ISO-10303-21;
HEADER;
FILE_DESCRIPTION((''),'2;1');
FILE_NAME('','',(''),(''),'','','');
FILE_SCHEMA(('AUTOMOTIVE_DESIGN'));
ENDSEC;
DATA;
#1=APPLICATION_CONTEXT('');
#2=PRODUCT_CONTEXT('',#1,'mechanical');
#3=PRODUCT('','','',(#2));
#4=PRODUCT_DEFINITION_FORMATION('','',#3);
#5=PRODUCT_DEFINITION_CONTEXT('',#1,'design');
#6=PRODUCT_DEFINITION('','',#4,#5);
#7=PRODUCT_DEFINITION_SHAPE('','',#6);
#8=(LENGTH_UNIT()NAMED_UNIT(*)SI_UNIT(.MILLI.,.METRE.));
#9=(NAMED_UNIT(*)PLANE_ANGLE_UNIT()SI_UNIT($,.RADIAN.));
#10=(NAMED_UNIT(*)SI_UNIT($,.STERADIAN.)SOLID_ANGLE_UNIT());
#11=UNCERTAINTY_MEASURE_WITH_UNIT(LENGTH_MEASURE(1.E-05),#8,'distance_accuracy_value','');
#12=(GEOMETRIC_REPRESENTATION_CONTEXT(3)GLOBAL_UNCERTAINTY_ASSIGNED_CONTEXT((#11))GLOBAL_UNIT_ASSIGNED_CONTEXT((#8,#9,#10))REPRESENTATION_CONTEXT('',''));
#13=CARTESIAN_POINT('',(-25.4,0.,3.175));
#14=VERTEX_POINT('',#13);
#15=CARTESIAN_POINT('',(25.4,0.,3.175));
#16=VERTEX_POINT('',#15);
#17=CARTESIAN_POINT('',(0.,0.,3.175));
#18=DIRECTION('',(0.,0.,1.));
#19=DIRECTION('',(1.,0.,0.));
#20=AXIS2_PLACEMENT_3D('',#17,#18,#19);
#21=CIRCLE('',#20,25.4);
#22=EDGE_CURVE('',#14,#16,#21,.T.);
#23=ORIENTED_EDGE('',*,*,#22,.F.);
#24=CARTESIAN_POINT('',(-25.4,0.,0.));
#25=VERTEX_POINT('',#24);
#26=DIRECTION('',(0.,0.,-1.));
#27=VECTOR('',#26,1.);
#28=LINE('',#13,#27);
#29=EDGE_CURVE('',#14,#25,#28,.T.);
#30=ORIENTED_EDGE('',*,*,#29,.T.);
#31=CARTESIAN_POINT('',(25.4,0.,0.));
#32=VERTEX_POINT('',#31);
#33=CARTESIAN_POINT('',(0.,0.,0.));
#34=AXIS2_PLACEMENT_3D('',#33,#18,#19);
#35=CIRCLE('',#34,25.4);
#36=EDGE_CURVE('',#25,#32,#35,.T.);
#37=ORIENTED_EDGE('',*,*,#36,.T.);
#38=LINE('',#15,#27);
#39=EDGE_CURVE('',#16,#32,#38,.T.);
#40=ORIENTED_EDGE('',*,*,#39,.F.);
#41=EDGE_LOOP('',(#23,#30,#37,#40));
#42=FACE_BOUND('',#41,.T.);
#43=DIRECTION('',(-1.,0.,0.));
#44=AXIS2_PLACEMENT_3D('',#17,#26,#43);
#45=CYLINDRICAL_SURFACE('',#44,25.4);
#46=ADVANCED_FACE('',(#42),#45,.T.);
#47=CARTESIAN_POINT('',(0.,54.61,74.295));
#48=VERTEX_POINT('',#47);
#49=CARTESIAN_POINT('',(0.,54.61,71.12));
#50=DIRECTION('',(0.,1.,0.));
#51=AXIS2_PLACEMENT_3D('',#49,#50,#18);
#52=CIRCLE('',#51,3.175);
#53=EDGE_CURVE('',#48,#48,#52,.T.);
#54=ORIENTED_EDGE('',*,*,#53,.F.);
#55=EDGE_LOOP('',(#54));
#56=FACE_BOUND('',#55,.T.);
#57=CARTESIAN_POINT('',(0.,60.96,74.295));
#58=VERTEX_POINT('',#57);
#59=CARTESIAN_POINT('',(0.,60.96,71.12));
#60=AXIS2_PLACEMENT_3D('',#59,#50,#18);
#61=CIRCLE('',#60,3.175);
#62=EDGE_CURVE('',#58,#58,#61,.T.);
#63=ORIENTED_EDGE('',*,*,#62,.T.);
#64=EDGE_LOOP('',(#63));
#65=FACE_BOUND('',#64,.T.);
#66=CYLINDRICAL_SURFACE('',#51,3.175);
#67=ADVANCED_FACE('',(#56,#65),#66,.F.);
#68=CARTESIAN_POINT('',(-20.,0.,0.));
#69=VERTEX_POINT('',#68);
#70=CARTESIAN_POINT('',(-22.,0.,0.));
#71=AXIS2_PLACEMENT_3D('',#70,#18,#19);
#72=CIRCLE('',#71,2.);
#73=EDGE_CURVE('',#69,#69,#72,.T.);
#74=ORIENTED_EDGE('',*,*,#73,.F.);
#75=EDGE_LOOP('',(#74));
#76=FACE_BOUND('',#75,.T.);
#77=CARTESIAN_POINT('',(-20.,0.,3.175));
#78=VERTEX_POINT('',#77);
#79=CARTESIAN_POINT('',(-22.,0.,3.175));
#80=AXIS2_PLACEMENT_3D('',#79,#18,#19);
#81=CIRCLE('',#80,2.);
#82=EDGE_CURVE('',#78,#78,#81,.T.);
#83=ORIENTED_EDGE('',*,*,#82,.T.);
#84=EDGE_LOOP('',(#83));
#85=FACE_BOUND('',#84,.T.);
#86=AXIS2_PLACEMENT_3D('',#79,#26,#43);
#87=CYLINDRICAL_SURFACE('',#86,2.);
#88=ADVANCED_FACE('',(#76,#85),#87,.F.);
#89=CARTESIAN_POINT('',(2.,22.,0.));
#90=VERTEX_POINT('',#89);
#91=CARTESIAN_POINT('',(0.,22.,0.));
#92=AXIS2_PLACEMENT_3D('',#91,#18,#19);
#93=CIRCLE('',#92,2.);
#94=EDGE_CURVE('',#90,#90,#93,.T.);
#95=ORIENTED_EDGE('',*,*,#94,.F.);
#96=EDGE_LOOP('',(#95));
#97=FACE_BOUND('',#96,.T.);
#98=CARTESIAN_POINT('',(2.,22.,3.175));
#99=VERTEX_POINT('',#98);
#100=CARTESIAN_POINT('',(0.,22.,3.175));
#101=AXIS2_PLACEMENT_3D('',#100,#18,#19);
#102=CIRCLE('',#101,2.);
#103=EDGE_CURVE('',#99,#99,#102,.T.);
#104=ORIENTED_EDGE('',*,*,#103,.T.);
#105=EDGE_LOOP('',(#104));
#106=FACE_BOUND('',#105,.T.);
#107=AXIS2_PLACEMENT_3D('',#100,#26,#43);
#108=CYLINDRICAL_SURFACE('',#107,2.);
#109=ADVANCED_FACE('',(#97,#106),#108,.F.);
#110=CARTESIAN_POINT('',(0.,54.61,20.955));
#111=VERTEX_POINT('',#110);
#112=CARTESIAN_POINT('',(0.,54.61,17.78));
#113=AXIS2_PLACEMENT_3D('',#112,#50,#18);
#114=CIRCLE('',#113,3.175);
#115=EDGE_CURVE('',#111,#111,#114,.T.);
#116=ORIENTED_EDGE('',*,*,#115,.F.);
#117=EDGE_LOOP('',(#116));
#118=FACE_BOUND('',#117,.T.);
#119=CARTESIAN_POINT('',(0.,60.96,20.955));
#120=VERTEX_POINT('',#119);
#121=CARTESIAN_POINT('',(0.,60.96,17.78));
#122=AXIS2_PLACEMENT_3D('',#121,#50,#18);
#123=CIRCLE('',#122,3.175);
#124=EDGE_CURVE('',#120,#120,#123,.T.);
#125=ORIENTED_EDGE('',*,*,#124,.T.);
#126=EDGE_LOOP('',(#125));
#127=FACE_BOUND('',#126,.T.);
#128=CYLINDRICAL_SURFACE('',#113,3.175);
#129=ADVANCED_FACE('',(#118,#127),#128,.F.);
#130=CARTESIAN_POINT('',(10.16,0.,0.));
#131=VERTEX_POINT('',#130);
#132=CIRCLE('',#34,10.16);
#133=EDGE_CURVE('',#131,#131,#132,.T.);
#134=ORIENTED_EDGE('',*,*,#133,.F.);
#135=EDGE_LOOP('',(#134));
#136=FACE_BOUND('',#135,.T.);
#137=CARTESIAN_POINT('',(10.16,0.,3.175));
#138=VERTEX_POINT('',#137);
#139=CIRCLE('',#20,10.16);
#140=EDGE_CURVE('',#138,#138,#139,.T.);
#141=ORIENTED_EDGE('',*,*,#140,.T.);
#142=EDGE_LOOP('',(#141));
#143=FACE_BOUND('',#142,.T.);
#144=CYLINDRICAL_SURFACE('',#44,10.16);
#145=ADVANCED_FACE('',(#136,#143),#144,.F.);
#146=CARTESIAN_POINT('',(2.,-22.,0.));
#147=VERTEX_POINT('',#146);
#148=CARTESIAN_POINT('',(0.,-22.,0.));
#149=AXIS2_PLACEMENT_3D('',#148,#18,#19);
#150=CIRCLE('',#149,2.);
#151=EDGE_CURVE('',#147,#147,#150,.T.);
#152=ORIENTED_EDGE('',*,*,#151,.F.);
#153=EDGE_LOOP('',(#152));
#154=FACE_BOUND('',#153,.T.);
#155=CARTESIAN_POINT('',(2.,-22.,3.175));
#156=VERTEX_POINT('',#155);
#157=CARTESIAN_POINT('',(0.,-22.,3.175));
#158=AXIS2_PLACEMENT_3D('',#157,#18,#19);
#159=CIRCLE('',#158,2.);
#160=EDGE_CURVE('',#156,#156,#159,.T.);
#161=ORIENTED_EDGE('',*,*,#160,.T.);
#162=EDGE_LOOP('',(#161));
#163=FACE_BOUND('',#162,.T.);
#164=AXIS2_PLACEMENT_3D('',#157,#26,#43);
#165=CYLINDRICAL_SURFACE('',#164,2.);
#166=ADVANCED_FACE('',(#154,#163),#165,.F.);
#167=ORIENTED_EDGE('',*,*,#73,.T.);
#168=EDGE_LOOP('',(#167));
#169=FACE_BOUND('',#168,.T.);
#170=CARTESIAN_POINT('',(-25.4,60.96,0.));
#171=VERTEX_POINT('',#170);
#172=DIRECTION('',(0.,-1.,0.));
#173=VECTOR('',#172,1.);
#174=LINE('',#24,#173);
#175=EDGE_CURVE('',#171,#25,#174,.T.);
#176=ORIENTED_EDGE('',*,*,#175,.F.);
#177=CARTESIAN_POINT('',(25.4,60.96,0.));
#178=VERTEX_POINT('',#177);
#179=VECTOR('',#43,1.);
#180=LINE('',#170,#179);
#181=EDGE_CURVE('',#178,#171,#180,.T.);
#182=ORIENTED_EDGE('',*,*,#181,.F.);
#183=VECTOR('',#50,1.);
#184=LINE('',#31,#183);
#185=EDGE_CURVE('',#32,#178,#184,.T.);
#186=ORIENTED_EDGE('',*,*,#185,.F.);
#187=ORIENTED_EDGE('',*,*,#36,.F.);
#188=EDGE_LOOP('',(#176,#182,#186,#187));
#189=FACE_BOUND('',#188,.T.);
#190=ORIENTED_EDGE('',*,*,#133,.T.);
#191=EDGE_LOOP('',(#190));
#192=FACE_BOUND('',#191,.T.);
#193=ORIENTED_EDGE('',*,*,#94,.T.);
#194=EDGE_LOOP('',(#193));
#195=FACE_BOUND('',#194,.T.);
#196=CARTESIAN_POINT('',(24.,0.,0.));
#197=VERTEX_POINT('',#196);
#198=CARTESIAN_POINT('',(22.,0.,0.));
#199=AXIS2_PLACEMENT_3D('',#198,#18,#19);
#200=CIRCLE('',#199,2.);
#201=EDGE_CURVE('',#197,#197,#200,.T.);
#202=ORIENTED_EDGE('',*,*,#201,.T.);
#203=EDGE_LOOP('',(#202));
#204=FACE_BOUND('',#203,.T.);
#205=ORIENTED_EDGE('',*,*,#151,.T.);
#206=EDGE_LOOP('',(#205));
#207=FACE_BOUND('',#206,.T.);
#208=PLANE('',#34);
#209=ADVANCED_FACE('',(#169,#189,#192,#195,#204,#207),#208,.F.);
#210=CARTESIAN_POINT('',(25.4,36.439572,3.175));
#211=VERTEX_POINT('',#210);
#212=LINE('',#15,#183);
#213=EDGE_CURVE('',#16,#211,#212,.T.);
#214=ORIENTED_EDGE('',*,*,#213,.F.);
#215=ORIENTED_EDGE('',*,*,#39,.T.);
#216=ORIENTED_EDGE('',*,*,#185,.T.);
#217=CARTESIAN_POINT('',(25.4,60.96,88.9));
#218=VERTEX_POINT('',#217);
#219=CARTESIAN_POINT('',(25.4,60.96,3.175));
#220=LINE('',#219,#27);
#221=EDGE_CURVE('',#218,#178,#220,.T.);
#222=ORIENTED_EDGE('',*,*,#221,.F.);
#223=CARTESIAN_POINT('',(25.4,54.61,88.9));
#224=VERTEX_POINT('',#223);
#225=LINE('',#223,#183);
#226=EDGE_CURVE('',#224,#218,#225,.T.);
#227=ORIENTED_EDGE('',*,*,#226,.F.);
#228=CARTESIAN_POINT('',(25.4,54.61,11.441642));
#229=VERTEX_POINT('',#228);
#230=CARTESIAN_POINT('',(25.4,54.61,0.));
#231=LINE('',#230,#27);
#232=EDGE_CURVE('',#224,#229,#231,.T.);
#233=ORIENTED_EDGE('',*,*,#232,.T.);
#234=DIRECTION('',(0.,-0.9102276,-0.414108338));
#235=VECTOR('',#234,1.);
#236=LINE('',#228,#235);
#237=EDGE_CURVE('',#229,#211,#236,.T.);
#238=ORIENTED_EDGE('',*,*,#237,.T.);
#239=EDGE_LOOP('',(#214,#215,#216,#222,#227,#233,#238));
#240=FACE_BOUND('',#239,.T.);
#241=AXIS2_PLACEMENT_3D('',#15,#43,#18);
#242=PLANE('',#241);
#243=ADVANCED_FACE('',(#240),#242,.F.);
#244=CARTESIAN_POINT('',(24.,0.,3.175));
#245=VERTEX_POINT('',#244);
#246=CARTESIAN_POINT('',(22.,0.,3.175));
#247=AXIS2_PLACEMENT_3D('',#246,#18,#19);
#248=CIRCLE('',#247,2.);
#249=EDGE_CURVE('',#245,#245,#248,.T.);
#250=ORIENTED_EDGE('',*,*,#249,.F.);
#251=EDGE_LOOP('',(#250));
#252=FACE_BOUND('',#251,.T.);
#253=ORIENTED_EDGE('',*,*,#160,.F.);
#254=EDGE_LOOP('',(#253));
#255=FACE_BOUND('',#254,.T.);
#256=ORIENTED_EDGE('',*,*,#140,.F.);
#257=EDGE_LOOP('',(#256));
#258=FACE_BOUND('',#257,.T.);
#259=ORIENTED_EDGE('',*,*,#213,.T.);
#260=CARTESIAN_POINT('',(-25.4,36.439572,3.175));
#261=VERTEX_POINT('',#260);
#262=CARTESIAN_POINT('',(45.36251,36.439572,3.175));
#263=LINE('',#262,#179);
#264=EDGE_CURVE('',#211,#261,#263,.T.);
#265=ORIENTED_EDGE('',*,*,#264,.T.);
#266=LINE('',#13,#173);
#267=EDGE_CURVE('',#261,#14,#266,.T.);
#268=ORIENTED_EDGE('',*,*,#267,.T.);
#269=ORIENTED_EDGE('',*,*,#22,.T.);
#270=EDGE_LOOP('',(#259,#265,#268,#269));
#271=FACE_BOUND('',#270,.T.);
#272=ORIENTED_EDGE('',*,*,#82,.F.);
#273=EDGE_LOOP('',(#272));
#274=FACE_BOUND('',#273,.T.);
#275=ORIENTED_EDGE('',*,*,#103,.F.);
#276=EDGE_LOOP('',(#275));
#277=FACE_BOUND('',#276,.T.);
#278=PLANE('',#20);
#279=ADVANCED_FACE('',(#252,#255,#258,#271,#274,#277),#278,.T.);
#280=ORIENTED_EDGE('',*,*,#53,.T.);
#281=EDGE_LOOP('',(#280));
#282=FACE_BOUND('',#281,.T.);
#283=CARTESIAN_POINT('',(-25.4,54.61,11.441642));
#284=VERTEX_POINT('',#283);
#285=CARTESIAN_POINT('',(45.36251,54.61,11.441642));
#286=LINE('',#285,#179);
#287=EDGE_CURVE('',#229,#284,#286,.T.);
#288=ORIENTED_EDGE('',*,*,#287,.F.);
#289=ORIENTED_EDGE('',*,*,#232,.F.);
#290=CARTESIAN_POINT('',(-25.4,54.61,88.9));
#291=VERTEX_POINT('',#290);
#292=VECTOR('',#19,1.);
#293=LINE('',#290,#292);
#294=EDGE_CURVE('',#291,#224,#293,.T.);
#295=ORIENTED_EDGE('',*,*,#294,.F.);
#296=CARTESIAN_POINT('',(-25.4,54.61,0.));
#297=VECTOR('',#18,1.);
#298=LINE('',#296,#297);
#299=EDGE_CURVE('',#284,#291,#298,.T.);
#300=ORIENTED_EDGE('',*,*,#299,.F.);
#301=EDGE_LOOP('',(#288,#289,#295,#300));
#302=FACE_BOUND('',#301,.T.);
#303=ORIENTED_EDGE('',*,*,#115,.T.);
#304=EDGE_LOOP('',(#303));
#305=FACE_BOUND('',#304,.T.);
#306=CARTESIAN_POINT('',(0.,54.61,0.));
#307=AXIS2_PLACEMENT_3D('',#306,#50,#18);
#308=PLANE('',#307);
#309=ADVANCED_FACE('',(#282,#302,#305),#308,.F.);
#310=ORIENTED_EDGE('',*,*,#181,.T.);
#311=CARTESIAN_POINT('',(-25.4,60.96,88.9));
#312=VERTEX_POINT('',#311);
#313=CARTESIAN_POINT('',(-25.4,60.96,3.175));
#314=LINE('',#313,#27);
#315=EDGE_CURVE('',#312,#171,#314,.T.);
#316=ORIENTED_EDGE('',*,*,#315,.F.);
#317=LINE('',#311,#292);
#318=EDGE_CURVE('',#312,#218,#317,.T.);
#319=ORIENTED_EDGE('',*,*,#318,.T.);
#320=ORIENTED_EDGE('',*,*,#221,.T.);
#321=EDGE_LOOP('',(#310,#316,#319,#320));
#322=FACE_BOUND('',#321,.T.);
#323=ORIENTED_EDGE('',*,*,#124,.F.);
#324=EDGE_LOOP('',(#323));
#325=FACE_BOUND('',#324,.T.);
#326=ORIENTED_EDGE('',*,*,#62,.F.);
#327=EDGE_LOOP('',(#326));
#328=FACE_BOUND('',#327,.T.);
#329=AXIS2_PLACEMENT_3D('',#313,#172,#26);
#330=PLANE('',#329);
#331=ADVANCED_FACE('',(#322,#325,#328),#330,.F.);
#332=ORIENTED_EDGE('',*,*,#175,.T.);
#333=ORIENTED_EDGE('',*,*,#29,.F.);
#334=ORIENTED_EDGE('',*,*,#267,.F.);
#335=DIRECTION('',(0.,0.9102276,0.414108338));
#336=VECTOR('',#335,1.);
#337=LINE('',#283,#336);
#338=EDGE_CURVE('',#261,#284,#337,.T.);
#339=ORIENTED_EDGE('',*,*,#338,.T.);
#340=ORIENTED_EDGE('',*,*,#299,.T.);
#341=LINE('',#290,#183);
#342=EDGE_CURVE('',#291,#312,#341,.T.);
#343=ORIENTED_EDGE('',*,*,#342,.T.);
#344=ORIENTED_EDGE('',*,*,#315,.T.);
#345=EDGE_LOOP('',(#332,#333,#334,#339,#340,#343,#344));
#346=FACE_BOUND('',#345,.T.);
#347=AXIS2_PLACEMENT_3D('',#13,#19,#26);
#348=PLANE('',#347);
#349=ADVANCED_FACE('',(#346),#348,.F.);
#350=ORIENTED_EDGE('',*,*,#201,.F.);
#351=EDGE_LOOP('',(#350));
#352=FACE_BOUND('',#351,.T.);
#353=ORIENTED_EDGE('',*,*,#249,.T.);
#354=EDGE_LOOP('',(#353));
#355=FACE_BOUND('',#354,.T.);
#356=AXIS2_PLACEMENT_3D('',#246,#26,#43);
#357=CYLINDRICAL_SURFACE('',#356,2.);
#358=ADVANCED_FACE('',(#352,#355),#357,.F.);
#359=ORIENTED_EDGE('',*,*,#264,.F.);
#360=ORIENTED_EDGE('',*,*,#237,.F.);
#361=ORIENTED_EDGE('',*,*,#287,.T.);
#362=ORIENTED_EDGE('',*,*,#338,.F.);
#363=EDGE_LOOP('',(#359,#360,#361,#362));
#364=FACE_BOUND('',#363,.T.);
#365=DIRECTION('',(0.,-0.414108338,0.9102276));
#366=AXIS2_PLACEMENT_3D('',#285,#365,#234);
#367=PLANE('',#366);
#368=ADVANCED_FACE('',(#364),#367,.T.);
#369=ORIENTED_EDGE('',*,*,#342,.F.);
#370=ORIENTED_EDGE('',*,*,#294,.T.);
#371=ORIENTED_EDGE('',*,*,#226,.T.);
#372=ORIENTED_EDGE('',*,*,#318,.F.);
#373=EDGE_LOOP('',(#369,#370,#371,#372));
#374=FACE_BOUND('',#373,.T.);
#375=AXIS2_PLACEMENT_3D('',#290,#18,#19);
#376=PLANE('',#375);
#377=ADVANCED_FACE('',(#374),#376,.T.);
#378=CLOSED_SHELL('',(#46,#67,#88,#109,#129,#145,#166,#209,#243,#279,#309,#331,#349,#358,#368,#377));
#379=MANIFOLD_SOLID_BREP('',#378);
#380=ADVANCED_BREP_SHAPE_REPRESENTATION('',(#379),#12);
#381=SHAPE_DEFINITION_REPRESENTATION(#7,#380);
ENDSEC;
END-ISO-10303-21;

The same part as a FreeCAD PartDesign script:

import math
import FreeCAD as App
import Part
import Sketcher
Q = App.Units.Quantity


def add_polygon(sketch, points):
    """Adds a closed chain of lines whose ends are joined by coincident constraints."""
    first, n = sketch.GeometryCount, len(points)
    for a, b in zip(points, points[1:] + points[:1]):
        sketch.addGeometry(Part.LineSegment(App.Vector(*a, 0), App.Vector(*b, 0)), False)
    for i in range(n):
        sketch.addConstraint(Sketcher.Constraint("Coincident", first + i, 2, first + (i + 1) % n, 1))

doc = App.newDocument("Part")
params = doc.addObject("Spreadsheet::Sheet", "Params")
for row, (alias, value) in enumerate([
    ("sketch1_radius", "1 in"),
    ("sketch1_diameter", "0.8 in"),
    ("sketch1_height", "2.4 in"),
    ("pad1_length", "0.125 in"),
    ("sketch2_diameter", "0.25 in"),
    ("sketch2_width", "2 in"),
    ("sketch2_height", "3.5 in"),
    ("pad2_length", "0.25 in"),
    ("pad3_length", "2 in"),
], start=1):
    params.set(f"A{row}", alias)
    params.set(f"B{row}", "=" + value)
    params.setAlias(f"B{row}", alias)

body = doc.addObject("PartDesign::Body", "Body")

sketch1 = body.newObject("Sketcher::SketchObject", "Sketch")
sketch1.AttachmentSupport = (doc.getObject("XY_Plane"), [""])
sketch1.MapMode = "FlatFace"
sketch1.addGeometry(Part.LineSegment(App.Vector(-25.4, 61, 0), App.Vector(-25.4, 0, 0)), False)
sketch1.addGeometry(Part.ArcOfCircle(Part.Circle(App.Vector(0, 0, 0), App.Vector(0, 0, 1), 25.4), math.radians(180), math.radians(360)), False)
sketch1.addGeometry(Part.LineSegment(App.Vector(25.4, 0, 0), App.Vector(25.4, 61, 0)), False)
sketch1.addGeometry(Part.LineSegment(App.Vector(25.4, 61, 0), App.Vector(-25.4, 61, 0)), False)
sketch1.addGeometry(Part.Circle(App.Vector(22, 0, 0), App.Vector(0, 0, 1), 2), False)
sketch1.addGeometry(Part.Circle(App.Vector(0, -22, 0), App.Vector(0, 0, 1), 2), False)
sketch1.addGeometry(Part.Circle(App.Vector(0, 0, 0), App.Vector(0, 0, 1), 10.2), False)
sketch1.addGeometry(Part.Circle(App.Vector(-22, 0, 0), App.Vector(0, 0, 1), 2), False)
sketch1.addGeometry(Part.Circle(App.Vector(0, 22, 0), App.Vector(0, 0, 1), 2), False)
sketch1.addConstraint(Sketcher.Constraint("Tangent", 0, 2, 1, 1))
sketch1.addConstraint(Sketcher.Constraint("Tangent", 1, 2, 2, 1))
sketch1.addConstraint(Sketcher.Constraint("Coincident", 2, 2, 3, 1))
sketch1.addConstraint(Sketcher.Constraint("Coincident", 3, 2, 0, 1))
sketch1.addConstraint(Sketcher.Constraint("Vertical", 0))
sketch1.addConstraint(Sketcher.Constraint("Vertical", 2))
sketch1.addConstraint(Sketcher.Constraint("Horizontal", 3))
sketch1.addConstraint(Sketcher.Constraint("Coincident", 1, 3, -1, 1))
sketch1.addConstraint(Sketcher.Constraint("Coincident", 6, 3, -1, 1))
sketch1.addConstraint(Sketcher.Constraint("Equal", 4, 5))
sketch1.addConstraint(Sketcher.Constraint("Equal", 5, 7))
sketch1.addConstraint(Sketcher.Constraint("Equal", 7, 8))
sketch1.addConstraint(Sketcher.Constraint("Symmetric", 4, 3, 7, 3, -1, 1))
sketch1.addConstraint(Sketcher.Constraint("Symmetric", 5, 3, 8, 3, -1, 1))
sketch1.addConstraint(Sketcher.Constraint("PointOnObject", 4, 3, -1))
sketch1.addConstraint(Sketcher.Constraint("PointOnObject", 5, 3, -2))
sketch1.addConstraint(Sketcher.Constraint("Radius", 1, Q("1 in")))
sketch1.addConstraint(Sketcher.Constraint("Diameter", 6, Q("0.8 in")))
sketch1.addConstraint(Sketcher.Constraint("DistanceY", 0, 2, 0, 1, Q("2.4 in")))
sketch1.addConstraint(Sketcher.Constraint("Diameter", 4, Q("4 mm")))
sketch1.addConstraint(Sketcher.Constraint("DistanceX", -1, 1, 4, 3, Q("22 mm")))
sketch1.addConstraint(Sketcher.Constraint("DistanceY", 5, 3, -1, 1, Q("22 mm")))
sketch1.setExpression("Constraints[16]", "Params.sketch1_radius")
sketch1.setExpression("Constraints[17]", "Params.sketch1_diameter")
sketch1.setExpression("Constraints[18]", "Params.sketch1_height")
pad1 = body.newObject("PartDesign::Pad", "Pad")
pad1.Profile = sketch1
pad1.setExpression("Length", "Params.pad1_length")

sketch2 = body.newObject("Sketcher::SketchObject", "Sketch001")
sketch2.AttachmentSupport = (doc.getObject("XZ_Plane"), [""])
sketch2.MapMode = "FlatFace"
sketch2.AttachmentOffset = App.Placement(App.Vector(0, 0, -2.4 * 25.4), App.Rotation())
add_polygon(sketch2, [(-25.4, 0), (-25.4, 88.9), (25.4, 88.9), (25.4, 0)])
sketch2.addGeometry(Part.Circle(App.Vector(0, 71.1, 0), App.Vector(0, 0, 1), 3.2), False)
sketch2.addGeometry(Part.Circle(App.Vector(0, 17.8, 0), App.Vector(0, 0, 1), 3.2), False)
sketch2.addConstraint(Sketcher.Constraint("Vertical", 0))
sketch2.addConstraint(Sketcher.Constraint("Horizontal", 1))
sketch2.addConstraint(Sketcher.Constraint("Vertical", 2))
sketch2.addConstraint(Sketcher.Constraint("Horizontal", 3))
sketch2.addConstraint(Sketcher.Constraint("Equal", 4, 5))
sketch2.addConstraint(Sketcher.Constraint("Symmetric", 2, 2, 3, 2, -1, 1))
sketch2.addConstraint(Sketcher.Constraint("PointOnObject", 4, 3, -2))
sketch2.addConstraint(Sketcher.Constraint("PointOnObject", 5, 3, -2))
sketch2.addConstraint(Sketcher.Constraint("Diameter", 4, Q("0.25 in")))
sketch2.addConstraint(Sketcher.Constraint("DistanceX", 1, 1, 1, 2, Q("2 in")))
sketch2.addConstraint(Sketcher.Constraint("DistanceY", 0, 1, 0, 2, Q("3.5 in")))
sketch2.addConstraint(Sketcher.Constraint("DistanceY", -1, 1, 4, 3, Q("2.8 in")))
sketch2.addConstraint(Sketcher.Constraint("DistanceY", -1, 1, 5, 3, Q("0.7 in")))
sketch2.setExpression("Constraints[12]", "Params.sketch2_diameter")
sketch2.setExpression("Constraints[13]", "Params.sketch2_width")
sketch2.setExpression("Constraints[14]", "Params.sketch2_height")
pad2 = body.newObject("PartDesign::Pad", "Pad001")
pad2.Profile = sketch2
pad2.setExpression("Length", "Params.pad2_length")

sketch3 = body.newObject("Sketcher::SketchObject", "Sketch002")
sketch3.AttachmentSupport = (doc.getObject("YZ_Plane"), [""])
sketch3.MapMode = "FlatFace"
sketch3.AttachmentOffset = App.Placement(App.Vector(0, 0, -1 * 25.4), App.Rotation())
add_polygon(sketch3, [(36, 3), (55, 11), (55, 3)])
sketch3.addConstraint(Sketcher.Constraint("Vertical", 1))
sketch3.addConstraint(Sketcher.Constraint("Horizontal", 2))
sketch3.addConstraint(Sketcher.Constraint("DistanceX", -1, 1, 0, 2, Q("2.15 in")))
sketch3.addConstraint(Sketcher.Constraint("DistanceY", -1, 1, 1, 2, Q("0.125 in")))
sketch3.addConstraint(Sketcher.Constraint("DistanceX", 2, 2, 2, 1, Q("18.170428 mm")))
sketch3.addConstraint(Sketcher.Constraint("Distance", 0, Q("19.96251 mm")))
pad3 = body.newObject("PartDesign::Pad", "Pad002")
pad3.Profile = sketch3
pad3.setExpression("Length", "Params.pad3_length")

doc.recompute()
